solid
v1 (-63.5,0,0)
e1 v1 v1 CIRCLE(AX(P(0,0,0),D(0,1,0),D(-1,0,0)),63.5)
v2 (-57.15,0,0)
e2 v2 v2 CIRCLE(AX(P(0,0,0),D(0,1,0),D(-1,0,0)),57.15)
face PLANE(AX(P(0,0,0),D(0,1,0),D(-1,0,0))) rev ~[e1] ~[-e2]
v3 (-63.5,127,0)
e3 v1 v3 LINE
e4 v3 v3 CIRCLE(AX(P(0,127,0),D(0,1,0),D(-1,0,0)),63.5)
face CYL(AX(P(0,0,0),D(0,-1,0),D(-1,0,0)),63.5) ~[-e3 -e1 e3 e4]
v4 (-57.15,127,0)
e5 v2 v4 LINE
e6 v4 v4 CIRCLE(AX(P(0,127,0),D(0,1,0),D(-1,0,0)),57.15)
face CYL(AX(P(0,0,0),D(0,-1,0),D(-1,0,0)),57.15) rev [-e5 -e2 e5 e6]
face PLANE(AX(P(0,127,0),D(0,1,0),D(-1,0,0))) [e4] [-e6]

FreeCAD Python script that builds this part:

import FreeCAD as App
import Part
import Sketcher
Q = App.Units.Quantity

doc = App.newDocument("Part")
body = doc.addObject("PartDesign::Body", "Body")

sketch1 = doc.addObject("Sketcher::SketchObject", "Sketch")
body.addObject(sketch1)
sketch1.AttachmentSupport = (doc.XZ_Plane, [""])
sketch1.MapMode = "FlatFace"
sketch1.addGeometry([
    Part.Circle(App.Vector(0, 0, 0), App.Vector(0, 0, 1), 63.5),
    Part.Circle(App.Vector(0, 0, 0), App.Vector(0, 0, 1), 57.15),
], False)
sketch1.addConstraint([
    Sketcher.Constraint("Coincident", 0, 3, -1, 1),
    Sketcher.Constraint("Coincident", 1, 3, -1, 1),
    Sketcher.Constraint("Diameter", 1, Q("4.5 in")),
    Sketcher.Constraint("Diameter", 0, Q("5 in")),
])
pad1 = doc.addObject("PartDesign::Pad", "Pad")
body.addObject(pad1)
pad1.Profile = sketch1
pad1.Length = Q("5 in")
pad1.Reversed = True

doc.recompute()
